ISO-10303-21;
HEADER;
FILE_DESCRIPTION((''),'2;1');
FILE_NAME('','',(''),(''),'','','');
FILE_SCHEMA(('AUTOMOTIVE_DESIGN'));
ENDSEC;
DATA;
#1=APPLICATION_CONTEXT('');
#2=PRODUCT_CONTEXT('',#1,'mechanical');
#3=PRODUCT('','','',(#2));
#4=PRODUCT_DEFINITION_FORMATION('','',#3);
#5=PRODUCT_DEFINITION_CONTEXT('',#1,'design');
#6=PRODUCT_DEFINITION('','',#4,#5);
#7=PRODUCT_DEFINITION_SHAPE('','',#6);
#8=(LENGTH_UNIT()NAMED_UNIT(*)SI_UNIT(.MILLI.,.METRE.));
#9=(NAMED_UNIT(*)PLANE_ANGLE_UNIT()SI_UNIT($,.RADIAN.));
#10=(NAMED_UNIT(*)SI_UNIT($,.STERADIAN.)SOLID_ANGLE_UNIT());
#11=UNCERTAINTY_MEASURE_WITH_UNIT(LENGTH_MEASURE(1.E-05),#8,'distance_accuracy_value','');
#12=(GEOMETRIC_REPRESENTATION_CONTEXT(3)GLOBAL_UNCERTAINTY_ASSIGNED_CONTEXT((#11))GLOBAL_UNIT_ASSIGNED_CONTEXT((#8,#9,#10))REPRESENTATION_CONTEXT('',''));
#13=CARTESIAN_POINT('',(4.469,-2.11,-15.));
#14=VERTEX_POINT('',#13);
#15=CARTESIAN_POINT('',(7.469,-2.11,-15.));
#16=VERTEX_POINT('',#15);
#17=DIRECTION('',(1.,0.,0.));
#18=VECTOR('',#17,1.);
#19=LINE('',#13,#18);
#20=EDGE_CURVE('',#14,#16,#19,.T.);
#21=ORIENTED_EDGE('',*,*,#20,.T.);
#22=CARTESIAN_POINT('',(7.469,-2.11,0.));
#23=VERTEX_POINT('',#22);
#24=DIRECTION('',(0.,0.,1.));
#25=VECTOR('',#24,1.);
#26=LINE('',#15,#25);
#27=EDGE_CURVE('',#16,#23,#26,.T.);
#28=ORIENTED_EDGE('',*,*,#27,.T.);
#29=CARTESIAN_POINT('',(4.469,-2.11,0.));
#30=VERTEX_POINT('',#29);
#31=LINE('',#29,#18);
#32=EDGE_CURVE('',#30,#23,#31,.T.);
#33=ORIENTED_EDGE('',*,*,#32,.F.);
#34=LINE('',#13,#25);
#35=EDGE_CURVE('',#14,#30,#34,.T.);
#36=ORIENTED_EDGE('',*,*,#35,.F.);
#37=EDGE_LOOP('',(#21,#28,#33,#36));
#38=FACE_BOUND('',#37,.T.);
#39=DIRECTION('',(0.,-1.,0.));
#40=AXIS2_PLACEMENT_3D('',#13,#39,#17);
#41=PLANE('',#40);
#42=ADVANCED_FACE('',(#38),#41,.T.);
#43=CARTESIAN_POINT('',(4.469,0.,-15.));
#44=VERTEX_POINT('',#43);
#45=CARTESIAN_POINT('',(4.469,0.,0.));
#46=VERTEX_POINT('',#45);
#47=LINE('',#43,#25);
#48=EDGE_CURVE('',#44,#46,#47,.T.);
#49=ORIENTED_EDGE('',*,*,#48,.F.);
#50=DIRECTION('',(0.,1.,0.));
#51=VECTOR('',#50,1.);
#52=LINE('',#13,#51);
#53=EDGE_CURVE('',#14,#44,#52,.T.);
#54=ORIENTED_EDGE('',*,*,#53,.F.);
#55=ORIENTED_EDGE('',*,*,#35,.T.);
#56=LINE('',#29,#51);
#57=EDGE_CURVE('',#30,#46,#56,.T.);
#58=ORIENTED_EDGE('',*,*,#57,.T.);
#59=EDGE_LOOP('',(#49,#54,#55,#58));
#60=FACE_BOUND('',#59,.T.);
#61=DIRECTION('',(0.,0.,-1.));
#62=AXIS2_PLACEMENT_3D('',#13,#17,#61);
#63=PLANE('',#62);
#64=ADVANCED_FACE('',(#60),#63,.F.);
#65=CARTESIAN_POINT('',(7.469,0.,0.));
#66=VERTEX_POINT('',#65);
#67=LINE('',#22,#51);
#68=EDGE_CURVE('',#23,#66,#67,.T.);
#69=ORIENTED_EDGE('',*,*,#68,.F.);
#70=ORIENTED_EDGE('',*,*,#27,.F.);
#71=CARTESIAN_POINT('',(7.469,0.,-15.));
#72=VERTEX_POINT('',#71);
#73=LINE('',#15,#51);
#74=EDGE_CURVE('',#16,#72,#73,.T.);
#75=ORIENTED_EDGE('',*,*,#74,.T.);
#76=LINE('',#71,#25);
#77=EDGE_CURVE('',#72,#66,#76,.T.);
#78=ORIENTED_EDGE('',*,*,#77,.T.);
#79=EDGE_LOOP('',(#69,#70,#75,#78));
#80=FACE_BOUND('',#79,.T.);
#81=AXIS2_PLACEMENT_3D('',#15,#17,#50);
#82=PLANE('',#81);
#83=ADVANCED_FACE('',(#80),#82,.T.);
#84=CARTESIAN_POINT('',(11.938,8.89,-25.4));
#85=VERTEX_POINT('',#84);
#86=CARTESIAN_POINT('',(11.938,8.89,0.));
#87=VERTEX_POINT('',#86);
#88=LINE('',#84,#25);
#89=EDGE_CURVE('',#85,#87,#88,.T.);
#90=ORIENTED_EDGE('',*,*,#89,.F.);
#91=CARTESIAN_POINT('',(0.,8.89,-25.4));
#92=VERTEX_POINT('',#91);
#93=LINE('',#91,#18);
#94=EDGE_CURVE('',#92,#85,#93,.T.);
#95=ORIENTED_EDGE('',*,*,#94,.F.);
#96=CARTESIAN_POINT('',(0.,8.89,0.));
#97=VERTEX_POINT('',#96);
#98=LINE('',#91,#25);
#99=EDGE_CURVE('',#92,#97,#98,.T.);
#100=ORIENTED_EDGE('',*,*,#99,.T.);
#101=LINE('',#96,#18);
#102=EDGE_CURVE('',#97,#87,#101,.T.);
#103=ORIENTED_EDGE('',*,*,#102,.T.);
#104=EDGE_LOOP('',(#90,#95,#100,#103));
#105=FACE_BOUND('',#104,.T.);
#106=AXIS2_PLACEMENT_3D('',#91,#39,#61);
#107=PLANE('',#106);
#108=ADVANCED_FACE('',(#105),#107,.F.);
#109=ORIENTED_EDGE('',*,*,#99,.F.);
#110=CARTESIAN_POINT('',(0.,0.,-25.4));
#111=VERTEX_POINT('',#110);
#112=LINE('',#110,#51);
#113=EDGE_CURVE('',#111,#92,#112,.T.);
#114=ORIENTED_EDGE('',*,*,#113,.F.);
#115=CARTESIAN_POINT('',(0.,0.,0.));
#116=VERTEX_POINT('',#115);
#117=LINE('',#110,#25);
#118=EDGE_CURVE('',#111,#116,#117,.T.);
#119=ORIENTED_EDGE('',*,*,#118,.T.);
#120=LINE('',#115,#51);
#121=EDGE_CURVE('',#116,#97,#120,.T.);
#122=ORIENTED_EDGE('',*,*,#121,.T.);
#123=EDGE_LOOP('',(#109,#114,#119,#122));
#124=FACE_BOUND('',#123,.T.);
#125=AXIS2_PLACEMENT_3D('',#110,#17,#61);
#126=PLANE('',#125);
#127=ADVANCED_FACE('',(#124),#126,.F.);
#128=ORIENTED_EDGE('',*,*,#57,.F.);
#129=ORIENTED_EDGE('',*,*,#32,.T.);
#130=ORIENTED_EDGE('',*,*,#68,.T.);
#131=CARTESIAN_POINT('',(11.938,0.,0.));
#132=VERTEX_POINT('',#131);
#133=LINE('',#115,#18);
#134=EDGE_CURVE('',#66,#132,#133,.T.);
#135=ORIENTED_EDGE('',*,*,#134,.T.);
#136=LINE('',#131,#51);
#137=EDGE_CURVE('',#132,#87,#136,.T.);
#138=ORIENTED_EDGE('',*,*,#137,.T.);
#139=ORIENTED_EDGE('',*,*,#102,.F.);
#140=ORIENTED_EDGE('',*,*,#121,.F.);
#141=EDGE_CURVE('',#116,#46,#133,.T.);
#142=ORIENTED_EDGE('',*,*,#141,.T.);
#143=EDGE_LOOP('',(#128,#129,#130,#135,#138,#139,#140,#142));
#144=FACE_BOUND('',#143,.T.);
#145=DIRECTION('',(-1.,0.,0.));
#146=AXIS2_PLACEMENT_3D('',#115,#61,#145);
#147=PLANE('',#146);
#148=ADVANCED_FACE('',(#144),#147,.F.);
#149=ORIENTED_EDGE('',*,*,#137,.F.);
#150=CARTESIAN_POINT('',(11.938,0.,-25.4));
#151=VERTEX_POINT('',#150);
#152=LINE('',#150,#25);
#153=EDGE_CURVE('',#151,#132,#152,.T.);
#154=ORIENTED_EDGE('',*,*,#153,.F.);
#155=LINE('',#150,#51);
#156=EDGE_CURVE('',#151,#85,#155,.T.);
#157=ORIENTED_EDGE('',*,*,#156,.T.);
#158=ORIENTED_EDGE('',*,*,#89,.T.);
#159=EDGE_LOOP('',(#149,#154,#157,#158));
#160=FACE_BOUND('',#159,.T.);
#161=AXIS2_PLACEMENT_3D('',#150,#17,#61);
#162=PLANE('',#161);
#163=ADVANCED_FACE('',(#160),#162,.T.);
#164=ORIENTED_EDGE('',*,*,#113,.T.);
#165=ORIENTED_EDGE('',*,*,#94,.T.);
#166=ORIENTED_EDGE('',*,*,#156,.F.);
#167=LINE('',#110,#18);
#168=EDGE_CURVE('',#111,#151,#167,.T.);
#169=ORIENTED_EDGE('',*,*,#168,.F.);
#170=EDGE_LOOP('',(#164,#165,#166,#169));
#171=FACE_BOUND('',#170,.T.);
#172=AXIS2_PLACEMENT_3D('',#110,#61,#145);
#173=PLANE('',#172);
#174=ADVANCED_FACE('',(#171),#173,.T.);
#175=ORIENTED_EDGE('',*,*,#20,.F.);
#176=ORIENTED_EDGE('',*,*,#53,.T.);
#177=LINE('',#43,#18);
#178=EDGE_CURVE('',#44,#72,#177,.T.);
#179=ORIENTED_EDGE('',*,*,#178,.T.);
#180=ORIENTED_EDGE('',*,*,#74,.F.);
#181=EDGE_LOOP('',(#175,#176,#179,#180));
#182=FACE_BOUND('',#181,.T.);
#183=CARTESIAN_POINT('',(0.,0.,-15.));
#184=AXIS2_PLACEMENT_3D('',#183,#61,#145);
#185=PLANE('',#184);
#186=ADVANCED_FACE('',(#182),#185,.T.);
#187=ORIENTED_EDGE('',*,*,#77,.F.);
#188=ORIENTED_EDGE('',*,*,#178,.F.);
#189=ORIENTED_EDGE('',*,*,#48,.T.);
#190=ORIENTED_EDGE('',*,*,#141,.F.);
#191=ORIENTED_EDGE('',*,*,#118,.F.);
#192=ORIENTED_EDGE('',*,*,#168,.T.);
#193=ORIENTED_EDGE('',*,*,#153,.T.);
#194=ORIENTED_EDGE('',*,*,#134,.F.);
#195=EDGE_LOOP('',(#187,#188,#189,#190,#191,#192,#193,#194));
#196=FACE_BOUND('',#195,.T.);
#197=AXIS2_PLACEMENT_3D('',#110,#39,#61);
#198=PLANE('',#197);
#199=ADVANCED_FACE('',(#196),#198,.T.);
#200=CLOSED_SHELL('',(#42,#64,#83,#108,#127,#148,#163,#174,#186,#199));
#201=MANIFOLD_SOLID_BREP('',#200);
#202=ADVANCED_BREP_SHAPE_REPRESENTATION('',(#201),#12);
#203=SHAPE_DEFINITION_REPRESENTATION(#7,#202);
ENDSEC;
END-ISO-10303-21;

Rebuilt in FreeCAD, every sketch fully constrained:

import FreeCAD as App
import Part
import Sketcher

V = App.Vector
Q = App.Units.Quantity

doc = App.newDocument("Part")
body = doc.addObject("PartDesign::Body", "Body")

# Sketch on XY plane
sketch1 = doc.addObject("Sketcher::SketchObject", "Sketch")
body.addObject(sketch1)
sketch1.AttachmentSupport = (doc.XY_Plane, [""])
sketch1.MapMode = "FlatFace"
sketch1.addGeometry(Part.LineSegment(V(0, 9, 0), V(0, 0, 0)), False)
sketch1.addGeometry(Part.LineSegment(V(0, 0, 0), V(12, 0, 0)), False)
sketch1.addGeometry(Part.LineSegment(V(12, 0, 0), V(12, 9, 0)), False)
sketch1.addGeometry(Part.LineSegment(V(12, 9, 0), V(0, 9, 0)), False)
sketch1.addConstraint(Sketcher.Constraint("Coincident", 0, 2, 1, 1))
sketch1.addConstraint(Sketcher.Constraint("Coincident", 1, 2, 2, 1))
sketch1.addConstraint(Sketcher.Constraint("Coincident", 2, 2, 3, 1))
sketch1.addConstraint(Sketcher.Constraint("Coincident", 3, 2, 0, 1))
sketch1.addConstraint(Sketcher.Constraint("Vertical", 0))
sketch1.addConstraint(Sketcher.Constraint("Horizontal", 1))
sketch1.addConstraint(Sketcher.Constraint("Vertical", 2))
sketch1.addConstraint(Sketcher.Constraint("Horizontal", 3))
sketch1.addConstraint(Sketcher.Constraint("Coincident", 0, 2, -1, 1))
sketch1.addConstraint(Sketcher.Constraint("DistanceX", 1, 1, 1, 2, Q("0.47 in")))
sketch1.addConstraint(Sketcher.Constraint("DistanceY", 0, 2, 0, 1, Q("0.35 in")))
pad1 = doc.addObject("PartDesign::Pad", "Pad")
body.addObject(pad1)
pad1.Profile = sketch1
pad1.Length = Q("1 in")
pad1.Reversed = True

# Sketch on XY plane
sketch2 = doc.addObject("Sketcher::SketchObject", "Sketch001")
body.addObject(sketch2)
sketch2.AttachmentSupport = (doc.XY_Plane, [""])
sketch2.MapMode = "FlatFace"
sketch2.addGeometry(Part.LineSegment(V(4.5, 0, 0), V(4.5, -2.1, 0)), False)
sketch2.addGeometry(Part.LineSegment(V(4.5, -2.1, 0), V(7.5, -2.1, 0)), False)
sketch2.addGeometry(Part.LineSegment(V(7.5, -2.1, 0), V(7.5, 0, 0)), False)
sketch2.addGeometry(Part.LineSegment(V(7.5, 0, 0), V(4.5, 0, 0)), False)
sketch2.addConstraint(Sketcher.Constraint("Coincident", 0, 2, 1, 1))
sketch2.addConstraint(Sketcher.Constraint("Coincident", 1, 2, 2, 1))
sketch2.addConstraint(Sketcher.Constraint("Coincident", 2, 2, 3, 1))
sketch2.addConstraint(Sketcher.Constraint("Coincident", 3, 2, 0, 1))
sketch2.addConstraint(Sketcher.Constraint("Vertical", 0))
sketch2.addConstraint(Sketcher.Constraint("Horizontal", 1))
sketch2.addConstraint(Sketcher.Constraint("Vertical", 2))
sketch2.addConstraint(Sketcher.Constraint("Horizontal", 3))
sketch2.addConstraint(Sketcher.Constraint("PointOnObject", 2, 2, -1))
sketch2.addConstraint(Sketcher.Constraint("DistanceX", 1, 1, 1, 2, Q("3 mm")))
sketch2.addConstraint(Sketcher.Constraint("DistanceY", 0, 2, 0, 1, Q("2.11 mm")))
sketch2.addConstraint(Sketcher.Constraint("DistanceX", -1, 1, 0, 2, Q("4.469 mm")))
pad2 = doc.addObject("PartDesign::Pad", "Pad001")
body.addObject(pad2)
pad2.Profile = sketch2
pad2.Length = 15
pad2.Reversed = True

doc.recompute()
